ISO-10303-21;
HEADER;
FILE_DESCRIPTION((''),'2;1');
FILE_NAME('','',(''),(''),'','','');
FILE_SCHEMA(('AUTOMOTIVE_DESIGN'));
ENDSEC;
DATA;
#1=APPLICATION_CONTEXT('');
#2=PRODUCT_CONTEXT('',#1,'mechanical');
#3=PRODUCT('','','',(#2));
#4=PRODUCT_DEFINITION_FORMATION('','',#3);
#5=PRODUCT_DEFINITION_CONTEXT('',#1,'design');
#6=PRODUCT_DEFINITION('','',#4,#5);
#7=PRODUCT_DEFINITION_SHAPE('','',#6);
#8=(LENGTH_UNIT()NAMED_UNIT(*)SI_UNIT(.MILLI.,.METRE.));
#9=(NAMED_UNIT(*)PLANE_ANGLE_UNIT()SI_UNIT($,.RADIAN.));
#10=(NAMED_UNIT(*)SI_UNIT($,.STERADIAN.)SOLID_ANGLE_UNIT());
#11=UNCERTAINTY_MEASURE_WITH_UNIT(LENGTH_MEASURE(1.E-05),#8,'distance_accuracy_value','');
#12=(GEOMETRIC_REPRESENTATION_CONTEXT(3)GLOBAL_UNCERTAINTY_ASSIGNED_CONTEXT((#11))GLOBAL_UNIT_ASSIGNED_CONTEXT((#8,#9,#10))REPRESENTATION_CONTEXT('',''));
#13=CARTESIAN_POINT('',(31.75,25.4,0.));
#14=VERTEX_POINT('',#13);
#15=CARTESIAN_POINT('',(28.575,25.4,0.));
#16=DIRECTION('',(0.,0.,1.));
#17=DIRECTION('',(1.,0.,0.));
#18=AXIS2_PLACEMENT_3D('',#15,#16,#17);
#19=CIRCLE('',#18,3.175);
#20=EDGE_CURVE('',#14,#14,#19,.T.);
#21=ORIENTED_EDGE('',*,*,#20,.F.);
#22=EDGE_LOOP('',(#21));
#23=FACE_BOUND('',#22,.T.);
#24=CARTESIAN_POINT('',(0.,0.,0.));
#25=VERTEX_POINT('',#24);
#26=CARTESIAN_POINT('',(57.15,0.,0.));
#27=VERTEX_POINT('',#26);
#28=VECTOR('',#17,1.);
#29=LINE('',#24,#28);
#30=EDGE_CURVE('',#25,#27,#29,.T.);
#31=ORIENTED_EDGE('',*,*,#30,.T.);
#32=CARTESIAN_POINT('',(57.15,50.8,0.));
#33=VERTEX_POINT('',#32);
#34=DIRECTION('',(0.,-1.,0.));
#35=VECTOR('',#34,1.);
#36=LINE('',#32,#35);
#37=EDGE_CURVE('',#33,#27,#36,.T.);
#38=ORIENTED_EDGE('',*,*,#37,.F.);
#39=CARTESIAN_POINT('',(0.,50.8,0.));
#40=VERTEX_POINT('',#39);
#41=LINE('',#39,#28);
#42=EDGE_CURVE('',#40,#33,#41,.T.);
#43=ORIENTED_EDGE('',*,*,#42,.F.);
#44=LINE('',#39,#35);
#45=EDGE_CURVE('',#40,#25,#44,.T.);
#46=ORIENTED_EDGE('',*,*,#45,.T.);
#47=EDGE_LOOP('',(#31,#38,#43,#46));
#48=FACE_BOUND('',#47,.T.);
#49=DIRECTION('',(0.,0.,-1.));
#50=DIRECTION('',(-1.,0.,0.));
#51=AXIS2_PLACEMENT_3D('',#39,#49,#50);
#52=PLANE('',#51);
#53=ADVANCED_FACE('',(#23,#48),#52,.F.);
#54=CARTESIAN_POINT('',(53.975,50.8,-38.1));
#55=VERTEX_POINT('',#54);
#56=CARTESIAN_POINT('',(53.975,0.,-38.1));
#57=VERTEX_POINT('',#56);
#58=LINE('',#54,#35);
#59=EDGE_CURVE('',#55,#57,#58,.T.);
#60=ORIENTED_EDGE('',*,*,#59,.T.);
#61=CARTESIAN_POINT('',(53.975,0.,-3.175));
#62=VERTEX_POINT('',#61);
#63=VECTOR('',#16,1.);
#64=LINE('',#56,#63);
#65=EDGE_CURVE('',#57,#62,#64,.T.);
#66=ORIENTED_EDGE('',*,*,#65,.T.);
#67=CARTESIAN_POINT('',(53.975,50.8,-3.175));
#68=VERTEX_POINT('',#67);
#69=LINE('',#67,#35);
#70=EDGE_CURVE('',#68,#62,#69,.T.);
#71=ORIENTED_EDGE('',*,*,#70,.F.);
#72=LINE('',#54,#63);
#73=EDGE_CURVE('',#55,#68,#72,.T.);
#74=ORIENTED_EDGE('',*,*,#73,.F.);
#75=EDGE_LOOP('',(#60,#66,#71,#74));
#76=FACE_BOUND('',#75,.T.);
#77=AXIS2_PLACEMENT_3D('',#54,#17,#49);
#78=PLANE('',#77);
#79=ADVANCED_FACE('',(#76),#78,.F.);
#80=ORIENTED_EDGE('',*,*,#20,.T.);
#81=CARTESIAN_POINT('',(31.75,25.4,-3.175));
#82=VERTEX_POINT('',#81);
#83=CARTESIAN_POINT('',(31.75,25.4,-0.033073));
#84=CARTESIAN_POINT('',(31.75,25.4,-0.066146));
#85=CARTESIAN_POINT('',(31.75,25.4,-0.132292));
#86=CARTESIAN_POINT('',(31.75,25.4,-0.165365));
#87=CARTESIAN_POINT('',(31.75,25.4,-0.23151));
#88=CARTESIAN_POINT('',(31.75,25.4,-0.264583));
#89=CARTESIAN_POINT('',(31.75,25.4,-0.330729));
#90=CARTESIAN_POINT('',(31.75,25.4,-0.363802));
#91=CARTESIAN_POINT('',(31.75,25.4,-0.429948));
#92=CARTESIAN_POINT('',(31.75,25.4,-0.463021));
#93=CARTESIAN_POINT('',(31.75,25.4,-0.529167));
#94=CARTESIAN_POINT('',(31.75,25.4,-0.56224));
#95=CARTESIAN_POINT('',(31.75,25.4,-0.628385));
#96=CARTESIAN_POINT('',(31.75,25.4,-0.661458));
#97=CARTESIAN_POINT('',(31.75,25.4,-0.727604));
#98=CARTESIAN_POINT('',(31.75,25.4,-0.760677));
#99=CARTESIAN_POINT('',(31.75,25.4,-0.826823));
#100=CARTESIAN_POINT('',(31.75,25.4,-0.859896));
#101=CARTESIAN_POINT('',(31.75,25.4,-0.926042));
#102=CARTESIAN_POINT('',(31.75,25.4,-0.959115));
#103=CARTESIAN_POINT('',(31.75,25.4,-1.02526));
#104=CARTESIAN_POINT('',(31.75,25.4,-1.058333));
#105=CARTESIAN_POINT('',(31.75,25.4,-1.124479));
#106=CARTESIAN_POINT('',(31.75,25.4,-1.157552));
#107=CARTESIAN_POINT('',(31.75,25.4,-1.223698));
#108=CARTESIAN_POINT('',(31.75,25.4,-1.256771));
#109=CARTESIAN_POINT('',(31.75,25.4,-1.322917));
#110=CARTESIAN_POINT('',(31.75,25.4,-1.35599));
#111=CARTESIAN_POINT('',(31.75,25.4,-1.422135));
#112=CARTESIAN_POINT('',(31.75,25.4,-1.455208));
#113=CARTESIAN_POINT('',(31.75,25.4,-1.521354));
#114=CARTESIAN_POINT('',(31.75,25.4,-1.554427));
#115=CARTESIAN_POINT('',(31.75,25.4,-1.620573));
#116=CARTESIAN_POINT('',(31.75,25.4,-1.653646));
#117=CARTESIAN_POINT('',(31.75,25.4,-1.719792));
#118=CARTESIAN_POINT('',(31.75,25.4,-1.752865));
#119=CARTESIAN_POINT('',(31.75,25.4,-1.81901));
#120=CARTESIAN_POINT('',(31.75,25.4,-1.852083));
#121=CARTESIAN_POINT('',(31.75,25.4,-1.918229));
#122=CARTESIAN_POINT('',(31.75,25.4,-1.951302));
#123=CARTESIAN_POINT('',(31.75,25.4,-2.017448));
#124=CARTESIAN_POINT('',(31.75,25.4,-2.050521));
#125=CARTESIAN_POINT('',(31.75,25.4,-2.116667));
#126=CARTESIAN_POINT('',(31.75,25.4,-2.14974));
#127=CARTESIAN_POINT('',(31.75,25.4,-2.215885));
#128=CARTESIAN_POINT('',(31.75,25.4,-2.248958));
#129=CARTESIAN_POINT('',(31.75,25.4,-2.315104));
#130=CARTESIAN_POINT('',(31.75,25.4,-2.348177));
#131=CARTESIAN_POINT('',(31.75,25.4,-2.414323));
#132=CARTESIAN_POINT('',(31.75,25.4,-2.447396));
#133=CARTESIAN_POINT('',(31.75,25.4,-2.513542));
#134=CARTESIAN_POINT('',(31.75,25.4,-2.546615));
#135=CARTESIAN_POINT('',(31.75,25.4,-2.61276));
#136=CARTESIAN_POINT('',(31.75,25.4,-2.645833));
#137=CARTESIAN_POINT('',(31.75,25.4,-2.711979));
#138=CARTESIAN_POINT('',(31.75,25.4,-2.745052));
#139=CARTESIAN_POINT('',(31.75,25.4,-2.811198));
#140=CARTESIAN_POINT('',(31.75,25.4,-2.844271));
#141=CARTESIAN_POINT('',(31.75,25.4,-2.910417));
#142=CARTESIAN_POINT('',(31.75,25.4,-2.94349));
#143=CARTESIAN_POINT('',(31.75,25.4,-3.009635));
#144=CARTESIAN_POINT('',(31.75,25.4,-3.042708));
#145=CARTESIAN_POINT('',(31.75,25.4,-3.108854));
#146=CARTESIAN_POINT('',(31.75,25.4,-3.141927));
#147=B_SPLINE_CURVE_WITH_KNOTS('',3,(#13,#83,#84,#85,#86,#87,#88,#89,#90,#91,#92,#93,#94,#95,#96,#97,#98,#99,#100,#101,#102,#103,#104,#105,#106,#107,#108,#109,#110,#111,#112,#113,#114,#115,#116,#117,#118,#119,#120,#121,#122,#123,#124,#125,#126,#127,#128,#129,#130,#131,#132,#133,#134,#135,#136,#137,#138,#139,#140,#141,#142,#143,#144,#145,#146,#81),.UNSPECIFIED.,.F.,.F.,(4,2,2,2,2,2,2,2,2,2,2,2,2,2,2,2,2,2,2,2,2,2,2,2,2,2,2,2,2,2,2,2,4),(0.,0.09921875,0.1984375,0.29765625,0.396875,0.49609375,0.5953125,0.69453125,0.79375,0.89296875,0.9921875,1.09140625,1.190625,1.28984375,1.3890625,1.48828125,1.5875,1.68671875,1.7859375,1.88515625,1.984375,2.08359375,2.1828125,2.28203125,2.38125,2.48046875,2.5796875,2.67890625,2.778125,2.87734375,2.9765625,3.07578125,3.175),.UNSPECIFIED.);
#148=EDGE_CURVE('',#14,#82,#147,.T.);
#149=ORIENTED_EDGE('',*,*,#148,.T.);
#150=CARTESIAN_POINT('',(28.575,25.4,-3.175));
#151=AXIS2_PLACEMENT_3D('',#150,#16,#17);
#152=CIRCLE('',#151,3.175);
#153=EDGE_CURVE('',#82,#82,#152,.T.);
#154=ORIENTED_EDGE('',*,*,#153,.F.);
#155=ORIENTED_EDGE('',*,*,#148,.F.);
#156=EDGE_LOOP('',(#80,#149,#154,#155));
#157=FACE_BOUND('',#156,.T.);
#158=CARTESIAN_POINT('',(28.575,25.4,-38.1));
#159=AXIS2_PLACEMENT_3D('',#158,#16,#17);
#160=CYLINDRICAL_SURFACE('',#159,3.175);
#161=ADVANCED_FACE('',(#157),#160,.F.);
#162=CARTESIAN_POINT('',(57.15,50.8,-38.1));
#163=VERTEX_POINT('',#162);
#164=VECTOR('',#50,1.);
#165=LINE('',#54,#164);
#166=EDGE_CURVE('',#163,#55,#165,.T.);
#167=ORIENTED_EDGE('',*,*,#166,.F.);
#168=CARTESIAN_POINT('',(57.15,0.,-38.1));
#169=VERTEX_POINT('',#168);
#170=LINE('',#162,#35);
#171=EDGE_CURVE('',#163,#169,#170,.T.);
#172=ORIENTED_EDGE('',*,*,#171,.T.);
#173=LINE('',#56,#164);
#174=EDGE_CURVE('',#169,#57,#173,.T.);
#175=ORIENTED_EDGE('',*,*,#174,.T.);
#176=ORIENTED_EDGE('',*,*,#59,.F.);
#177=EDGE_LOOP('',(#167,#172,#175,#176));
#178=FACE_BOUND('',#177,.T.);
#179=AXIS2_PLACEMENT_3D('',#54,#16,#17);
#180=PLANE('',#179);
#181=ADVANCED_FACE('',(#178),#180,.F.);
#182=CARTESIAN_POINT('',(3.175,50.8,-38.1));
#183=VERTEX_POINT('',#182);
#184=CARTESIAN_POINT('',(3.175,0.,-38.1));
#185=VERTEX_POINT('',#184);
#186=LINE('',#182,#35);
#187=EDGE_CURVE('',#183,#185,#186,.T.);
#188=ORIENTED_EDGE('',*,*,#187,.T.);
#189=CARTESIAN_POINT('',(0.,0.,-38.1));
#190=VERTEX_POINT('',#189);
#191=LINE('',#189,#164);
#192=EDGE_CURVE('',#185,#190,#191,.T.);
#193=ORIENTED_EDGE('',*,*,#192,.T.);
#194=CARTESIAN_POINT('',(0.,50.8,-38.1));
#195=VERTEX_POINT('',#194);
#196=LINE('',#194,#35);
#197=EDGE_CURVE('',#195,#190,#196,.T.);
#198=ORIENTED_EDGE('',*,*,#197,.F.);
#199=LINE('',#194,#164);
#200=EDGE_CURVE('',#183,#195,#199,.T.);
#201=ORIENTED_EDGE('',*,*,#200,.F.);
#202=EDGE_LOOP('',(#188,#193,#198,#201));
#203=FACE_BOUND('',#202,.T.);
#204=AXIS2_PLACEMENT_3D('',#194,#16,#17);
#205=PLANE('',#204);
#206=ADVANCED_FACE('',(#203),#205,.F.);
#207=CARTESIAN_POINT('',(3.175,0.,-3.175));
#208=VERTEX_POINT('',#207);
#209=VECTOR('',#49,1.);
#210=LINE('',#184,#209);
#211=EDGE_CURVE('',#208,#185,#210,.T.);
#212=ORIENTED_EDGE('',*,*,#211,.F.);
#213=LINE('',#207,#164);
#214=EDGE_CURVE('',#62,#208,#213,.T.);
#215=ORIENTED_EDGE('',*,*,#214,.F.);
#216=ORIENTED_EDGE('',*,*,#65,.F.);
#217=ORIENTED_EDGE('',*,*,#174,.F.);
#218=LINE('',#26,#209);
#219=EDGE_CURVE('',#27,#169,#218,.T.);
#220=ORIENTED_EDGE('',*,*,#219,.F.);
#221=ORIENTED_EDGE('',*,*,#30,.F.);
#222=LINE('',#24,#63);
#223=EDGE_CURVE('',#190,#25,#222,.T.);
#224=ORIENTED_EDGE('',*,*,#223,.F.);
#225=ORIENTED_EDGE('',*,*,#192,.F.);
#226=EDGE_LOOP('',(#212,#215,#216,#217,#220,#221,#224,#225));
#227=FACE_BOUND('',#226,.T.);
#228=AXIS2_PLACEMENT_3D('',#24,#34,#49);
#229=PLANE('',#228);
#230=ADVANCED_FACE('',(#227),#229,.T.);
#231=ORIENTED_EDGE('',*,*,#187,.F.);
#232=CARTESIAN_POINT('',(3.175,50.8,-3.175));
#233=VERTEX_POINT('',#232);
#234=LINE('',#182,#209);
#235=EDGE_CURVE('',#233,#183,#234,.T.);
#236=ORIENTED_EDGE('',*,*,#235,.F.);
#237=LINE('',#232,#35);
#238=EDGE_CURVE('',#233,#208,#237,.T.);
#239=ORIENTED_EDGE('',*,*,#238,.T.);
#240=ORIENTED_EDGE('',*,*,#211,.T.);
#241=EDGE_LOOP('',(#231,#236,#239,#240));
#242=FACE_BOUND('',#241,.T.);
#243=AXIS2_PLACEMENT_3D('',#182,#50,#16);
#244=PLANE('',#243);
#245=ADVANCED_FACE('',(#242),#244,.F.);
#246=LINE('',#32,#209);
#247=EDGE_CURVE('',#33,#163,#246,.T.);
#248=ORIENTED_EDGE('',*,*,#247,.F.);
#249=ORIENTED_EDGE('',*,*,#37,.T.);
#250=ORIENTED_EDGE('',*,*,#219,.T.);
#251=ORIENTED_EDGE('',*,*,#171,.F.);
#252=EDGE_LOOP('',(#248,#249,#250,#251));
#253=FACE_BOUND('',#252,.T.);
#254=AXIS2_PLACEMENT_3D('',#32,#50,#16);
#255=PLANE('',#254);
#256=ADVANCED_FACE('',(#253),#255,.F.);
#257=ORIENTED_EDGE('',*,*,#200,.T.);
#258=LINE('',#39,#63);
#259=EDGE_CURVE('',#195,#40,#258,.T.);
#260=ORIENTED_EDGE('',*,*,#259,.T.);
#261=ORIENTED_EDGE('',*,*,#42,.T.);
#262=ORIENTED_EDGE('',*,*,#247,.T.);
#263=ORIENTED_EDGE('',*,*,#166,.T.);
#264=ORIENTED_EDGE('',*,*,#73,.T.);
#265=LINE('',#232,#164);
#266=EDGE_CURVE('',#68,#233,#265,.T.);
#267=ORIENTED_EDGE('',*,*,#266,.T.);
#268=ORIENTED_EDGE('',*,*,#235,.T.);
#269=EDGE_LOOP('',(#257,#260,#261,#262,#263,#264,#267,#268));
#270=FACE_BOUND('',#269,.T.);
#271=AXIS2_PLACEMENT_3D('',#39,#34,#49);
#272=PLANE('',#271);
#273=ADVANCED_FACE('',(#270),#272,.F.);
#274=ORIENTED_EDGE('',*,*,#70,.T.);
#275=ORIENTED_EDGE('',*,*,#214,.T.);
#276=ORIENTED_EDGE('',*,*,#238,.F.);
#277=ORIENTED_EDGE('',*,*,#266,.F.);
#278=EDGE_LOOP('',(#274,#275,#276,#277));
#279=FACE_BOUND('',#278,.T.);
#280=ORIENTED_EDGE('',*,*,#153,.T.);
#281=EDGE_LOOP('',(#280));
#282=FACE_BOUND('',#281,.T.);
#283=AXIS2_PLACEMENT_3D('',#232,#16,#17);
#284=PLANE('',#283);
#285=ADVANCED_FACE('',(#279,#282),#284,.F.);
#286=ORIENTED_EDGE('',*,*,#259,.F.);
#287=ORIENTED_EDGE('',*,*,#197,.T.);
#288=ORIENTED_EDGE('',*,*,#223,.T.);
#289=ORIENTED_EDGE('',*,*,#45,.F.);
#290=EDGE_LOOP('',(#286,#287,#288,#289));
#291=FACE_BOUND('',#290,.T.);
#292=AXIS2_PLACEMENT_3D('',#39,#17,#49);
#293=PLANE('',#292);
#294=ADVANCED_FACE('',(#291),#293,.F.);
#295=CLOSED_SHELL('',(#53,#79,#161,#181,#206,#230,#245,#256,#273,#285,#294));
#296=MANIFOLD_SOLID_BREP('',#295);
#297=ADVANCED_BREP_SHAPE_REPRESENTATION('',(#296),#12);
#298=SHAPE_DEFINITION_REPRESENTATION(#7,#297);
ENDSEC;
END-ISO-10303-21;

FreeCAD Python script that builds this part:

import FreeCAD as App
import Part
import Sketcher
from FreeCAD import Vector
Q = App.Units.Quantity

doc = App.newDocument("Part")
params = doc.addObject("Spreadsheet::Sheet", "Params")
for row, (alias, value) in enumerate([
    ("sketch1_width", "2 in"),
    ("sketch1_height", "1.5 in"),
    ("sketch1_width2", "2.25 in"),
    ("sketch1_height2", "1.375 in"),
    ("pad1_length", "2 in"),
    ("sketch2_diameter", "0.25 in"),
], start=1):
    params.set(f"A{row}", alias)
    params.set(f"B{row}", "=" + value)
    params.setAlias(f"B{row}", alias)

body = doc.addObject("PartDesign::Body", "Body")

# Sketch on XZ plane
sketch1 = body.newObject("Sketcher::SketchObject", "Sketch")
sketch1.AttachmentSupport = (doc.getObject("XZ_Plane"), [""])
sketch1.MapMode = "FlatFace"
sketch1.addGeometry([
    Part.LineSegment(Vector(57.1, -38.1, 0), Vector(54, -38.1, 0)),  # 0
    Part.LineSegment(Vector(54, -38.1, 0), Vector(54, -3.2, 0)),  # 1
    Part.LineSegment(Vector(54, -3.2, 0), Vector(3.2, -3.2, 0)),  # 2
    Part.LineSegment(Vector(3.2, -3.2, 0), Vector(3.2, -38.1, 0)),  # 3
    Part.LineSegment(Vector(3.2, -38.1, 0), Vector(0, -38.1, 0)),  # 4
    Part.LineSegment(Vector(0, -38.1, 0), Vector(0, 0, 0)),  # 5
    Part.LineSegment(Vector(0, 0, 0), Vector(57.1, 0, 0)),  # 6
    Part.LineSegment(Vector(57.1, 0, 0), Vector(57.1, -38.1, 0)),  # 7
], False)
sketch1.addConstraint([
    Sketcher.Constraint("Coincident", 0, 2, 1, 1),
    Sketcher.Constraint("Coincident", 1, 2, 2, 1),
    Sketcher.Constraint("Coincident", 2, 2, 3, 1),
    Sketcher.Constraint("Coincident", 3, 2, 4, 1),
    Sketcher.Constraint("Coincident", 4, 2, 5, 1),
    Sketcher.Constraint("Coincident", 5, 2, 6, 1),
    Sketcher.Constraint("Coincident", 6, 2, 7, 1),
    Sketcher.Constraint("Coincident", 7, 2, 0, 1),
    Sketcher.Constraint("Horizontal", 0),
    Sketcher.Constraint("Vertical", 1),
    Sketcher.Constraint("Horizontal", 2),
    Sketcher.Constraint("Vertical", 3),
    Sketcher.Constraint("Horizontal", 4),
    Sketcher.Constraint("Vertical", 5),
    Sketcher.Constraint("Horizontal", 6),
    Sketcher.Constraint("Vertical", 7),
    Sketcher.Constraint("Coincident", 5, 2, -1, 1),
    Sketcher.Constraint("Horizontal", 0, 2, 3, 2),
    Sketcher.Constraint("Equal", 0, 4),
    Sketcher.Constraint("DistanceX", 2, 2, 2, 1, Q("2 in")),
    Sketcher.Constraint("DistanceY", 5, 1, 5, 2, Q("1.5 in")),
    Sketcher.Constraint("DistanceX", 6, 1, 6, 2, Q("2.25 in")),
    Sketcher.Constraint("DistanceY", 1, 1, 1, 2, Q("1.375 in")),
])
sketch1.setExpression("Constraints[19]", "Params.sketch1_width")
sketch1.setExpression("Constraints[20]", "Params.sketch1_height")
sketch1.setExpression("Constraints[21]", "Params.sketch1_width2")
sketch1.setExpression("Constraints[22]", "Params.sketch1_height2")
pad1 = body.newObject("PartDesign::Pad", "Pad")
pad1.Profile = sketch1
pad1.setExpression("Length", "Params.pad1_length")
pad1.Reversed = True

# Sketch on XY plane
sketch2 = body.newObject("Sketcher::SketchObject", "Sketch001")
sketch2.AttachmentSupport = (doc.getObject("XY_Plane"), [""])
sketch2.MapMode = "FlatFace"
sketch2.addGeometry(Part.Circle(Vector(28.6, 25.4, 0), Vector(0, 0, 1), 3.2), False)
sketch2.addConstraint([
    Sketcher.Constraint("Diameter", 0, Q("0.25 in")),
    Sketcher.Constraint("DistanceY", -1, 1, 0, 3, Q("1 in")),
    Sketcher.Constraint("DistanceX", -1, 1, 0, 3, Q("1.125 in")),
])
sketch2.setExpression("Constraints[0]", "Params.sketch2_diameter")
pocket1 = body.newObject("PartDesign::Pocket", "Pocket")
pocket1.Profile = sketch2
pocket1.Type = "ThroughAll"

doc.recompute()
